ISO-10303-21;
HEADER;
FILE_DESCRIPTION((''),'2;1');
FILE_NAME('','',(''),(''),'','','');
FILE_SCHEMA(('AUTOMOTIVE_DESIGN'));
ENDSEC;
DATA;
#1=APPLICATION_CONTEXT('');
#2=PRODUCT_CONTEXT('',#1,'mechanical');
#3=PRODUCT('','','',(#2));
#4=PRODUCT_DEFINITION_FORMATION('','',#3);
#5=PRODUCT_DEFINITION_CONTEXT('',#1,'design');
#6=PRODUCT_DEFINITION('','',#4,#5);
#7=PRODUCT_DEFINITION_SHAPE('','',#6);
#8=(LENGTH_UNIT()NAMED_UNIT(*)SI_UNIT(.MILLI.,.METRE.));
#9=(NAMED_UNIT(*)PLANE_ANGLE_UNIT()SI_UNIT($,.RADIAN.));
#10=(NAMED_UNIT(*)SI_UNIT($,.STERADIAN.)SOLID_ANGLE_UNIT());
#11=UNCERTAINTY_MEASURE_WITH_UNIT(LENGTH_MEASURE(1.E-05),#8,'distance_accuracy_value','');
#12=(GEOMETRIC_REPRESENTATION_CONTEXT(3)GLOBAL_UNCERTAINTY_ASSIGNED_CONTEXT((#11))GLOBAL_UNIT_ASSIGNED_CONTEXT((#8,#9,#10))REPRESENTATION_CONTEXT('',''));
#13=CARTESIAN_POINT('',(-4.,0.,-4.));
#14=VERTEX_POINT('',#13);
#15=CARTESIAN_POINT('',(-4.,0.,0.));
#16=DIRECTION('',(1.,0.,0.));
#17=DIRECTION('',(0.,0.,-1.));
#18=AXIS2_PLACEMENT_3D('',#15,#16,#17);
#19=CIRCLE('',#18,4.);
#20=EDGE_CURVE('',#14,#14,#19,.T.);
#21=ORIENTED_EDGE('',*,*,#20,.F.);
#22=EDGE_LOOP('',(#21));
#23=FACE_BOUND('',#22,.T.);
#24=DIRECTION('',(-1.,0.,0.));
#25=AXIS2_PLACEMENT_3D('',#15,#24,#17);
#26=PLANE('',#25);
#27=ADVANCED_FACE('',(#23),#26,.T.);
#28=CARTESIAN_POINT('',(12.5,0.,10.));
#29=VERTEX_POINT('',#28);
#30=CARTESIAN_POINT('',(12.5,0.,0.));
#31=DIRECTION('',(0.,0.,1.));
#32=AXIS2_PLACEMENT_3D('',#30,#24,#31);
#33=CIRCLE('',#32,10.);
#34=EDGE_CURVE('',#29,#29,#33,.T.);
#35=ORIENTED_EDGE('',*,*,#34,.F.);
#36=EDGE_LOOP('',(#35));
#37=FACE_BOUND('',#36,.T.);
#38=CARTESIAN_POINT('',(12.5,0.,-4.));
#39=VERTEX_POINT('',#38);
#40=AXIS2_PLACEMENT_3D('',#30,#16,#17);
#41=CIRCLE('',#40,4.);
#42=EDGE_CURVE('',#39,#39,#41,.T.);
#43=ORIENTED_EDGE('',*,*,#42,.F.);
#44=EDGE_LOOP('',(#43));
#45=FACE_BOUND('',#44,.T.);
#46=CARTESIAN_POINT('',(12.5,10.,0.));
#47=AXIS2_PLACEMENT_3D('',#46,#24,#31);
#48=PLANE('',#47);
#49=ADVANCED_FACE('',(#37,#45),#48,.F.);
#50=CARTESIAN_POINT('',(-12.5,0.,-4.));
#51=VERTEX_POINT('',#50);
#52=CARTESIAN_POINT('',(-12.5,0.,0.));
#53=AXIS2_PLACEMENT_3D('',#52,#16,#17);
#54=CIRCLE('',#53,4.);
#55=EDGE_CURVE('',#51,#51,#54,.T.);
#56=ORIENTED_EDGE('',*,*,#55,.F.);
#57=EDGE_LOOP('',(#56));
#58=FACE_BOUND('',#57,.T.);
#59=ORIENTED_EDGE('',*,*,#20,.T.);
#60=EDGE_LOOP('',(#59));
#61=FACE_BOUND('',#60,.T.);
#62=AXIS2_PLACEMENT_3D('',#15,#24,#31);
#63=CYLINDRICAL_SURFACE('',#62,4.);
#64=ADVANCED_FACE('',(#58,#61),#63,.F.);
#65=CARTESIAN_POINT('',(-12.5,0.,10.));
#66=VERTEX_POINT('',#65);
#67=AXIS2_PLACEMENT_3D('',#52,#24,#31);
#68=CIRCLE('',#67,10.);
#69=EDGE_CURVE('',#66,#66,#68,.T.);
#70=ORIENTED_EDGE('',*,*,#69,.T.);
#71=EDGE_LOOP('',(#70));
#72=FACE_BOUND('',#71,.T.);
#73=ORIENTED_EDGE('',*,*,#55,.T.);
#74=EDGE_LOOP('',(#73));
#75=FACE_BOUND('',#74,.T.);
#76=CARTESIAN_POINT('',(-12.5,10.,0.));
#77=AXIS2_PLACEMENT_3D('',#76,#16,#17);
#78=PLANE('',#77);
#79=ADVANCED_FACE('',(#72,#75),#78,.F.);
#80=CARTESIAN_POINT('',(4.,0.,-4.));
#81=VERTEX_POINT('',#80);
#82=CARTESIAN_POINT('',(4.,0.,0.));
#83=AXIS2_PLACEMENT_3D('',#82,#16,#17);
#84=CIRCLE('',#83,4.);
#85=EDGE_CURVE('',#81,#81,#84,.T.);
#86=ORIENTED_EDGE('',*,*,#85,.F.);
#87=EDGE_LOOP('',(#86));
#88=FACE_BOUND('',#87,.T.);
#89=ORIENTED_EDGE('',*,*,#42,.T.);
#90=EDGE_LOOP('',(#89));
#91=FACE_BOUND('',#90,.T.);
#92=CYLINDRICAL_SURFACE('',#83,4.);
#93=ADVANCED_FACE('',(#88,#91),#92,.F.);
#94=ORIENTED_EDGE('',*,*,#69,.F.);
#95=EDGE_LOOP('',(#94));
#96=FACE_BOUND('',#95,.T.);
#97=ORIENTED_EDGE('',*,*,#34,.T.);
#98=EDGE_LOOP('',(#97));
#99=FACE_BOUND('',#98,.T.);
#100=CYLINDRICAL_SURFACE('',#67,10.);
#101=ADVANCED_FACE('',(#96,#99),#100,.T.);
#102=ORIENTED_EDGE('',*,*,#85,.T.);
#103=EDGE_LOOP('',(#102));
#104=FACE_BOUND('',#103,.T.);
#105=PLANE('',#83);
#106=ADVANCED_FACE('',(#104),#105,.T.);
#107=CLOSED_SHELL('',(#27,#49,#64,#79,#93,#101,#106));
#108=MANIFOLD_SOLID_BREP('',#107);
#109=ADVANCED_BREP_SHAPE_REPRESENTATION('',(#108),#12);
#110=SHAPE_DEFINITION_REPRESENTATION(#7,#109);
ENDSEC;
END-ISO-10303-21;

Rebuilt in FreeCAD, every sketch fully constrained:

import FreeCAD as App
import Part
import Sketcher


def add_polygon(sketch, points):
    """Adds a closed chain of lines whose ends are joined by coincident constraints."""
    first, n = sketch.GeometryCount, len(points)
    for a, b in zip(points, points[1:] + points[:1]):
        sketch.addGeometry(Part.LineSegment(App.Vector(*a, 0), App.Vector(*b, 0)), False)
    for i in range(n):
        sketch.addConstraint(Sketcher.Constraint("Coincident", first + i, 2, first + (i + 1) % n, 1))

doc = App.newDocument("Part")
params = doc.addObject("Spreadsheet::Sheet", "Params")
for row, (alias, value) in enumerate([
    ("sketch1_width", "25 mm"),
    ("sketch1_height", "10 mm"),
    ("revolution_angle", "360 deg"),
    ("sketch2_diameter", "8 mm"),
    ("pocket1_length", "8.5 mm"),
], start=1):
    params.set(f"A{row}", alias)
    params.set(f"B{row}", "=" + value)
    params.setAlias(f"B{row}", alias)

body = doc.addObject("PartDesign::Body", "Body")

# Sketch on XY plane
sketch1 = body.newObject("Sketcher::SketchObject", "Sketch")
sketch1.AttachmentSupport = (doc.getObject("XY_Plane"), [""])
sketch1.MapMode = "FlatFace"
add_polygon(sketch1, [(-12, 10), (-12, 0), (12, 0), (12, 10)])  # lines 0-3
sketch1.addConstraint(Sketcher.Constraint("Vertical", 0))
sketch1.addConstraint(Sketcher.Constraint("Horizontal", 1))
sketch1.addConstraint(Sketcher.Constraint("Vertical", 2))
sketch1.addConstraint(Sketcher.Constraint("Horizontal", 3))
sketch1.addConstraint(Sketcher.Constraint("Symmetric", 0, 2, 1, 2, -1, 1))
sketch1.addConstraint(Sketcher.Constraint("DistanceX", 1, 1, 1, 2, 25.0))
sketch1.addConstraint(Sketcher.Constraint("DistanceY", 0, 2, 0, 1, 10.0))
sketch1.setExpression("Constraints[9]", "Params.sketch1_width")
sketch1.setExpression("Constraints[10]", "Params.sketch1_height")
revolution = body.newObject("PartDesign::Revolution", "Revolution")
revolution.Profile = sketch1
revolution.ReferenceAxis = (sketch1, ["H_Axis"])
revolution.setExpression("Angle", "Params.revolution_angle")

# Sketch on YZ plane
sketch2 = body.newObject("Sketcher::SketchObject", "Sketch001")
sketch2.AttachmentSupport = (doc.getObject("YZ_Plane"), [""])
sketch2.MapMode = "FlatFace"
sketch2.AttachmentOffset = App.Placement(App.Vector(0, 0, 12.5), App.Rotation())
sketch2.addGeometry(Part.Circle(App.Vector(0, 0, 0), App.Vector(0, 0, 1), 4), False)
sketch2.addConstraint(Sketcher.Constraint("Coincident", 0, 3, -1, 1))
sketch2.addConstraint(Sketcher.Constraint("Diameter", 0, 8.0))
sketch2.setExpression("Constraints[1]", "Params.sketch2_diameter")
pocket1 = body.newObject("PartDesign::Pocket", "Pocket")
pocket1.Profile = sketch2
pocket1.setExpression("Length", "Params.pocket1_length")
doc.recompute()

mirrored = body.newObject("PartDesign::Mirrored", "Mirrored")
mirrored.Originals = [pocket1]
mirrored.MirrorPlane = (doc.getObject("YZ_Plane"), [""])
body.Tip = mirrored

doc.recompute()
